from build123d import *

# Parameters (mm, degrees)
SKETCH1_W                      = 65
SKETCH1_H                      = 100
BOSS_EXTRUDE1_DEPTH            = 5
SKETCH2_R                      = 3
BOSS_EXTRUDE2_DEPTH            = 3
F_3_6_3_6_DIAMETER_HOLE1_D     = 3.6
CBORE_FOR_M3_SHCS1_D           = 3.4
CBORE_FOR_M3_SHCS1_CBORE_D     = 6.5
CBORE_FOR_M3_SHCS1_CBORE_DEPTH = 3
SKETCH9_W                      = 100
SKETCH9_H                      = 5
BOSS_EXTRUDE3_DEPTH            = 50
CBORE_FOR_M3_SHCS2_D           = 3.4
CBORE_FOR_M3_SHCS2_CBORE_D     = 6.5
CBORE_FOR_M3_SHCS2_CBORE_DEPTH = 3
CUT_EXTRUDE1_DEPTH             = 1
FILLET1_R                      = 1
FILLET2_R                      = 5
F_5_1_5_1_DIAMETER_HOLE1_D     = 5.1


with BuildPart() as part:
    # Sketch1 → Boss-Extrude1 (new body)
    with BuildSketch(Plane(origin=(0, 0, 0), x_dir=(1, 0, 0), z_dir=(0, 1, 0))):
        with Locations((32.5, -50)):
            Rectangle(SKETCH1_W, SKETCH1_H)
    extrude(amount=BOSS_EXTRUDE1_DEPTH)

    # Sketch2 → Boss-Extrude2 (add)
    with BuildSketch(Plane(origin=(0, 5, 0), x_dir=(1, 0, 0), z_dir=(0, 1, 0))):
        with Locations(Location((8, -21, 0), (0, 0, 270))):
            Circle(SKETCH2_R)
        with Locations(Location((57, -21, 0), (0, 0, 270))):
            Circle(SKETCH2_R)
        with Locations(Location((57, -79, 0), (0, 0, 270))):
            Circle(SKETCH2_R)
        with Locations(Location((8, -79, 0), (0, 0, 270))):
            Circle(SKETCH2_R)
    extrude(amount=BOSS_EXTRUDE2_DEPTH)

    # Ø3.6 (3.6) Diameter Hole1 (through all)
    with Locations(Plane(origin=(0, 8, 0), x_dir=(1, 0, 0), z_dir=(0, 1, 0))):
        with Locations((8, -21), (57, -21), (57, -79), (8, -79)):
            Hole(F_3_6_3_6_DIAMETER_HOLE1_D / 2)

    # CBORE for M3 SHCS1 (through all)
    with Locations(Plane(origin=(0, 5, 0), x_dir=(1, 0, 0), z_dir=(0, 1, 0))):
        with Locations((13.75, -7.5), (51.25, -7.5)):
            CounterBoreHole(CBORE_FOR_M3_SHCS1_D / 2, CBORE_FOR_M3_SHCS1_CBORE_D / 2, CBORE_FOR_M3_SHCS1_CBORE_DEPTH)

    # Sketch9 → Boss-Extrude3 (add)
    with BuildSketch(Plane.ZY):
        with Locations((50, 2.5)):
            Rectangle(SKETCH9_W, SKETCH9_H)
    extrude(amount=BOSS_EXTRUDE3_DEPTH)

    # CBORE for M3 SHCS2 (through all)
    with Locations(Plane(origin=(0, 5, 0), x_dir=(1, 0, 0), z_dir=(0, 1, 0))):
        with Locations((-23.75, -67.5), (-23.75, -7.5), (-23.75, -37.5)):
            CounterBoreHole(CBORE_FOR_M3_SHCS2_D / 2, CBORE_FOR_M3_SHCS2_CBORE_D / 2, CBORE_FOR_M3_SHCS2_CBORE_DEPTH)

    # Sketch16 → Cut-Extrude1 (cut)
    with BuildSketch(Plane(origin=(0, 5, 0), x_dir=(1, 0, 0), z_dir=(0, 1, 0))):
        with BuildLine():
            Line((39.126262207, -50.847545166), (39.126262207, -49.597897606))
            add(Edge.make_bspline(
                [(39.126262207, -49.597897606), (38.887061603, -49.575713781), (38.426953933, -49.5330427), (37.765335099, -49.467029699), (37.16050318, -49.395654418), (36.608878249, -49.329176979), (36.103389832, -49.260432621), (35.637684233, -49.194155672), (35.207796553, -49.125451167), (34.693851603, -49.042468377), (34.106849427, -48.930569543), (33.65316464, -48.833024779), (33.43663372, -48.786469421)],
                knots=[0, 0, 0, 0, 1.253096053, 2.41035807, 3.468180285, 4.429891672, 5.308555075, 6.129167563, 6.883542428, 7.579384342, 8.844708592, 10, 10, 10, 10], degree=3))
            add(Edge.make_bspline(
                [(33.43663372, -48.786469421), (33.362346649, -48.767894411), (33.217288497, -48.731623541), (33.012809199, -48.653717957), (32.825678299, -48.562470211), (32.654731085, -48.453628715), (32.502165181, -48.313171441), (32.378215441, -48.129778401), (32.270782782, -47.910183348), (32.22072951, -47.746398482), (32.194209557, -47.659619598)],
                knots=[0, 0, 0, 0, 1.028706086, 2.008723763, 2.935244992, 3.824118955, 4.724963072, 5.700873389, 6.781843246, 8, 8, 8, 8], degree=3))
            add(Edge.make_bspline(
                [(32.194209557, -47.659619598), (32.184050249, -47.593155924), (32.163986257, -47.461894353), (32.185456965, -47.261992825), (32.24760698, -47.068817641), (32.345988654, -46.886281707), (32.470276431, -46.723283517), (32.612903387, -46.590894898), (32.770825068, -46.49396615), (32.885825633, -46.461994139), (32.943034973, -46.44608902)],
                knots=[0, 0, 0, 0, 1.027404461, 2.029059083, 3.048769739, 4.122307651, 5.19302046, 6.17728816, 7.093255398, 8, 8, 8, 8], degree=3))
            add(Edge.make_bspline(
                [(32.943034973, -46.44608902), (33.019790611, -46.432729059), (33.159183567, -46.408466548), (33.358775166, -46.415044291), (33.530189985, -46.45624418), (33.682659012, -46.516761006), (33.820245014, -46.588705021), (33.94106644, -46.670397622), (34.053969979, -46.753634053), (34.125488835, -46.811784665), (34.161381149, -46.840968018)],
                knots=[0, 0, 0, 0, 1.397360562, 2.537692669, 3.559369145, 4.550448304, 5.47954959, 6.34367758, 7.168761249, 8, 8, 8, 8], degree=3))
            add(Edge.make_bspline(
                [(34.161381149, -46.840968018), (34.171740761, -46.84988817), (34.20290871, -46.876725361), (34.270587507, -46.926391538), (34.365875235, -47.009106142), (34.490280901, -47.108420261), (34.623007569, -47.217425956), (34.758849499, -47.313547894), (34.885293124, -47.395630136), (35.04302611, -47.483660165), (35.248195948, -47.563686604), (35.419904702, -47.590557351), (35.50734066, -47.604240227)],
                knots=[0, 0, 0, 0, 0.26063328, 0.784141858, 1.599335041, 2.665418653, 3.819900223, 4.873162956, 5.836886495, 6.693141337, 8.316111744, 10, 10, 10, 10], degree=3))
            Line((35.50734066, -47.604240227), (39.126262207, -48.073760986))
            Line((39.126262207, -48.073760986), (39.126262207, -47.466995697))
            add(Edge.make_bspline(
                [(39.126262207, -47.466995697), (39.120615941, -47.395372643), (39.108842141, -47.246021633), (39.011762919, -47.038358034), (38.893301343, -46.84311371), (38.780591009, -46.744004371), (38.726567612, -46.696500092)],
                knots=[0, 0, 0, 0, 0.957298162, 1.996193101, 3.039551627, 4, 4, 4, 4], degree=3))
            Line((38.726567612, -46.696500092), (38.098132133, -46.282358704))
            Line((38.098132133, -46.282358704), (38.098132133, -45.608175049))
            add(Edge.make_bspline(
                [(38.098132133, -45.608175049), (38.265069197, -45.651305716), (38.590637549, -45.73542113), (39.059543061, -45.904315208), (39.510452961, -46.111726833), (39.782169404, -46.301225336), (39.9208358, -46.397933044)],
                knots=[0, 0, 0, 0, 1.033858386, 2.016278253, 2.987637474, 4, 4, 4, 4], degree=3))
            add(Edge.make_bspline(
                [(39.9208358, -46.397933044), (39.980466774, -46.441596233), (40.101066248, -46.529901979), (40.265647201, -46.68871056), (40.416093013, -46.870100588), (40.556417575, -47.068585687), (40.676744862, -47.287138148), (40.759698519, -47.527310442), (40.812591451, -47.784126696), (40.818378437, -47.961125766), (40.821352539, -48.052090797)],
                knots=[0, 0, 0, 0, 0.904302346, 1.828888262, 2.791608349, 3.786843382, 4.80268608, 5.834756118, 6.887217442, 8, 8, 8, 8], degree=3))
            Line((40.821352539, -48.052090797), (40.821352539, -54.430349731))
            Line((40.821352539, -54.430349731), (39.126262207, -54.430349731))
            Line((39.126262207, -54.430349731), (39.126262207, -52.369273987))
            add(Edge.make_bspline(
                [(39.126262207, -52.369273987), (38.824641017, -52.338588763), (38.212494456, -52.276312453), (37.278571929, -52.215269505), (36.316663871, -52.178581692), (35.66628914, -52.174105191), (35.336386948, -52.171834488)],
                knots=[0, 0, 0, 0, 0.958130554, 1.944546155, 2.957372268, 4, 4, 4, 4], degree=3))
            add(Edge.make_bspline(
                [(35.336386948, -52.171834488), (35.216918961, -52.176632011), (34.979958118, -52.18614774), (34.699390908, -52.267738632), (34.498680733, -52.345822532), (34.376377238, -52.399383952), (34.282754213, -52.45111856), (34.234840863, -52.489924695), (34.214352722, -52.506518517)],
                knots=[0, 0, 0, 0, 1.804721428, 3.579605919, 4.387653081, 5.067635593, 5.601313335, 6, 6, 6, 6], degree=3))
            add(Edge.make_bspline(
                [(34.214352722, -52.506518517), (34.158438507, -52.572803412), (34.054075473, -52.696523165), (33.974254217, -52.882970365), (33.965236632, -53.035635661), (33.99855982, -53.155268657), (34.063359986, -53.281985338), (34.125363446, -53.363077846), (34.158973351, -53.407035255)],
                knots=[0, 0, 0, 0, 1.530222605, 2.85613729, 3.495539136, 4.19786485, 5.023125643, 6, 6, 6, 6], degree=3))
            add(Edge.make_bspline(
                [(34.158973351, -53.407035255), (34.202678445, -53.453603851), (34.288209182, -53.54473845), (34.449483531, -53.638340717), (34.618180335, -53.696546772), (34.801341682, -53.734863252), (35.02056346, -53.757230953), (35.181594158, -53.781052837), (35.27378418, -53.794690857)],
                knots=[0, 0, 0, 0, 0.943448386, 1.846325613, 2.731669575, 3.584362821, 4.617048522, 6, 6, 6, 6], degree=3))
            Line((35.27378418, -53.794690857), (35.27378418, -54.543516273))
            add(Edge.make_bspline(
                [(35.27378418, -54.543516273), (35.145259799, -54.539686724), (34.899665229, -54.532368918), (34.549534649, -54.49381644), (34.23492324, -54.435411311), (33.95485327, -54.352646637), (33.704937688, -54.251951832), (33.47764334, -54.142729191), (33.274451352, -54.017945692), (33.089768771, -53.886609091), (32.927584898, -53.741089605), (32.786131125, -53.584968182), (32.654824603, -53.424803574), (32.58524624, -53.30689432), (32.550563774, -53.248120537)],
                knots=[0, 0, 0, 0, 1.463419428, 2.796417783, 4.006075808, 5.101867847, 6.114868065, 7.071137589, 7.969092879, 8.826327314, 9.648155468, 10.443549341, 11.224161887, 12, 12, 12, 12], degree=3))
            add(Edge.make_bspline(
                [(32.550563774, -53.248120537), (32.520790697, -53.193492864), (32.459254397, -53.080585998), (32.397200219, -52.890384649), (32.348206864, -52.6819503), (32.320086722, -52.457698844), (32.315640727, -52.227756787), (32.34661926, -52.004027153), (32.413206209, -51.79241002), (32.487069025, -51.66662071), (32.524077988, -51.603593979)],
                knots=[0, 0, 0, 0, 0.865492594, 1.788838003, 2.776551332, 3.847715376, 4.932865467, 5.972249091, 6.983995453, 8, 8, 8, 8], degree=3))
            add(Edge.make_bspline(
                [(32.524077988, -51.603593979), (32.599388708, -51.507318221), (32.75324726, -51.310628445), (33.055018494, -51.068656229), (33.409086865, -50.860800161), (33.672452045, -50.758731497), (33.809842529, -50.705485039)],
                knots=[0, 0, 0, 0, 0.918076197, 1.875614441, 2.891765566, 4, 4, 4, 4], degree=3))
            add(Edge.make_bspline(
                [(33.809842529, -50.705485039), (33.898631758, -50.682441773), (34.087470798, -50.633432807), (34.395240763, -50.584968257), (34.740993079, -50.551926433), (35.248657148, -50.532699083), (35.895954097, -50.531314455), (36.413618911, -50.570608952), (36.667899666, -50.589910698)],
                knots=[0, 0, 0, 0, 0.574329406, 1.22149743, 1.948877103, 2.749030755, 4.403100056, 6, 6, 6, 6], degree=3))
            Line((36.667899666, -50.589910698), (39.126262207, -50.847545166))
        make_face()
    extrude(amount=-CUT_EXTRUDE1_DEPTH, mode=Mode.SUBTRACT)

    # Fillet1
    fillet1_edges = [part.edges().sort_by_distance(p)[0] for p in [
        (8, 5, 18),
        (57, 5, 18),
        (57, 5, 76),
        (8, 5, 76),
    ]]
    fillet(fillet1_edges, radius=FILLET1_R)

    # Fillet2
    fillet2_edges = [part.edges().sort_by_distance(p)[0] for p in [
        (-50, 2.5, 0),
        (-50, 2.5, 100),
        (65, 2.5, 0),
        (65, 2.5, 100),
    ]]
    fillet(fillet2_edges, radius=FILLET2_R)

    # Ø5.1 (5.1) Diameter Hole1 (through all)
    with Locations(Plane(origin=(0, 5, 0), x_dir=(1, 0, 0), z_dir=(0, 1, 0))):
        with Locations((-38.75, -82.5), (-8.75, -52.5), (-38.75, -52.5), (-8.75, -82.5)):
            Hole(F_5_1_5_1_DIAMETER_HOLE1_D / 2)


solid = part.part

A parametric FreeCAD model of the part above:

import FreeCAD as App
import Part
import Sketcher


def edges_at(feature, points):
    """Names of the edges that pass closest to the given points."""
    edges = feature.Shape.Edges
    near = lambda p: min(range(len(edges)), key=lambda i: edges[i].distToShape(Part.Vertex(*p))[0])
    return sorted({f"Edge{near(p) + 1}" for p in points})


def add_polygon(sketch, points):
    """Adds a closed chain of lines whose ends are joined by coincident constraints."""
    first, n = sketch.GeometryCount, len(points)
    for a, b in zip(points, points[1:] + points[:1]):
        sketch.addGeometry(Part.LineSegment(App.Vector(*a, 0), App.Vector(*b, 0)), False)
    for i in range(n):
        sketch.addConstraint(Sketcher.Constraint("Coincident", first + i, 2, first + (i + 1) % n, 1))

doc = App.newDocument("Part")
body = doc.addObject("PartDesign::Body", "Body")

# Sketch on XZ plane
sketch1 = body.newObject("Sketcher::SketchObject", "Sketch")
sketch1.AttachmentSupport = (doc.getObject("XZ_Plane"), [""])
sketch1.MapMode = "FlatFace"
add_polygon(sketch1, [(0, 0), (0, 100), (65, 100), (65, 0)])  # lines 0-3
sketch1.addConstraint([
    Sketcher.Constraint("Vertical", 0),
    Sketcher.Constraint("Horizontal", 1),
    Sketcher.Constraint("Vertical", 2),
    Sketcher.Constraint("Horizontal", 3),
    Sketcher.Constraint("Coincident", 3, 2, -1, 1),
    Sketcher.Constraint("DistanceX", 1, 1, 1, 2, 65.0),
    Sketcher.Constraint("DistanceY", 0, 1, 0, 2, 100.0),
])
pad1 = body.newObject("PartDesign::Pad", "Pad")
pad1.Profile = sketch1
pad1.Length = 5
pad1.Reversed = True

# Sketch on XZ plane
sketch2 = body.newObject("Sketcher::SketchObject", "Sketch001")
sketch2.AttachmentSupport = (doc.getObject("XZ_Plane"), [""])
sketch2.MapMode = "FlatFace"
sketch2.AttachmentOffset = App.Placement(App.Vector(0, 0, -5), App.Rotation())
sketch2.addGeometry([
    Part.Circle(App.Vector(8, 21, 0), App.Vector(0, 0, 1), 3),
    Part.Circle(App.Vector(57, 21, 0), App.Vector(0, 0, 1), 3),
    Part.Circle(App.Vector(57, 79, 0), App.Vector(0, 0, 1), 3),
    Part.Circle(App.Vector(8, 79, 0), App.Vector(0, 0, 1), 3),
], False)
sketch2.addConstraint([
    Sketcher.Constraint("Equal", 0, 1),
    Sketcher.Constraint("Equal", 1, 2),
    Sketcher.Constraint("Equal", 2, 3),
    Sketcher.Constraint("Horizontal", 0, 3, 1, 3),
    Sketcher.Constraint("Horizontal", 2, 3, 3, 3),
    Sketcher.Constraint("Vertical", 1, 3, 2, 3),
    Sketcher.Constraint("Vertical", 0, 3, 3, 3),
    Sketcher.Constraint("Diameter", 0, 6.0),
    Sketcher.Constraint("DistanceX", -1, 1, 0, 3, 8.0),
    Sketcher.Constraint("DistanceY", -1, 1, 0, 3, 21.0),
    Sketcher.Constraint("DistanceX", -1, 1, 1, 3, 57.0),
    Sketcher.Constraint("DistanceY", -1, 1, 2, 3, 79.0),
])
pad2 = body.newObject("PartDesign::Pad", "Pad001")
pad2.Profile = sketch2
pad2.Length = 3
pad2.Reversed = True

# Sketch on XZ plane
sketch3 = body.newObject("Sketcher::SketchObject", "Sketch002")
sketch3.AttachmentSupport = (doc.getObject("XZ_Plane"), [""])
sketch3.MapMode = "FlatFace"
sketch3.AttachmentOffset = App.Placement(App.Vector(0, 0, -8), App.Rotation())
sketch3.addGeometry([
    Part.Circle(App.Vector(8, 21, 0), App.Vector(0, 0, 1), 1.8),
    Part.Circle(App.Vector(57, 21, 0), App.Vector(0, 0, 1), 1.8),
    Part.Circle(App.Vector(57, 79, 0), App.Vector(0, 0, 1), 1.8),
    Part.Circle(App.Vector(8, 79, 0), App.Vector(0, 0, 1), 1.8),
], False)
sketch3.addConstraint([
    Sketcher.Constraint("Equal", 0, 1),
    Sketcher.Constraint("Equal", 1, 2),
    Sketcher.Constraint("Equal", 2, 3),
    Sketcher.Constraint("Horizontal", 0, 3, 1, 3),
    Sketcher.Constraint("Horizontal", 2, 3, 3, 3),
    Sketcher.Constraint("Vertical", 1, 3, 2, 3),
    Sketcher.Constraint("Vertical", 0, 3, 3, 3),
    Sketcher.Constraint("Diameter", 0, 3.6),
    Sketcher.Constraint("DistanceX", -1, 1, 0, 3, 8.0),
    Sketcher.Constraint("DistanceY", -1, 1, 0, 3, 21.0),
    Sketcher.Constraint("DistanceX", -1, 1, 1, 3, 57.0),
    Sketcher.Constraint("DistanceY", -1, 1, 2, 3, 79.0),
])
doc.recompute()
hole = body.newObject("PartDesign::Hole", "Hole")
hole.Profile = sketch3
hole.ThreadType = "None"
hole.Diameter = 3.6
hole.DepthType = "ThroughAll"
hole.Reversed = True

# Sketch on XZ plane
sketch4 = body.newObject("Sketcher::SketchObject", "Sketch003")
sketch4.AttachmentSupport = (doc.getObject("XZ_Plane"), [""])
sketch4.MapMode = "FlatFace"
sketch4.AttachmentOffset = App.Placement(App.Vector(0, 0, -5), App.Rotation())
sketch4.addGeometry([
    Part.Circle(App.Vector(13.75, 7.5, 0), App.Vector(0, 0, 1), 1.7),
    Part.Circle(App.Vector(51.25, 7.5, 0), App.Vector(0, 0, 1), 1.7),
], False)
sketch4.addConstraint([
    Sketcher.Constraint("Equal", 0, 1),
    Sketcher.Constraint("Horizontal", 0, 3, 1, 3),
    Sketcher.Constraint("Diameter", 0, 3.4),
    Sketcher.Constraint("DistanceY", -1, 1, 0, 3, 7.5),
    Sketcher.Constraint("DistanceX", 0, 3, 1, 3, 37.5),
    Sketcher.Constraint("DistanceX", -1, 1, 0, 3, 13.75),
])
doc.recompute()
hole2 = body.newObject("PartDesign::Hole", "Hole001")
hole2.Profile = sketch4
hole2.ThreadType = "None"
hole2.Diameter = 3.4
hole2.DepthType = "ThroughAll"
hole2.HoleCutType = "Counterbore"
hole2.HoleCutDiameter = 6.5
hole2.HoleCutDepth = 3
hole2.Reversed = True

# Sketch on YZ plane
sketch5 = body.newObject("Sketcher::SketchObject", "Sketch004")
sketch5.AttachmentSupport = (doc.getObject("YZ_Plane"), [""])
sketch5.MapMode = "FlatFace"
add_polygon(sketch5, [(5, 0), (0, 0), (0, 100), (5, 100)])  # lines 0-3
sketch5.addConstraint([
    Sketcher.Constraint("Horizontal", 0),
    Sketcher.Constraint("Vertical", 1),
    Sketcher.Constraint("Horizontal", 2),
    Sketcher.Constraint("Vertical", 3),
    Sketcher.Constraint("Coincident", 0, 2, -1, 1),
    Sketcher.Constraint("DistanceX", 0, 2, 0, 1, 5.0),
    Sketcher.Constraint("DistanceY", 1, 1, 1, 2, 100.0),
])
pad3 = body.newObject("PartDesign::Pad", "Pad002")
pad3.Profile = sketch5
pad3.Length = 50
pad3.Reversed = True

# Sketch on XZ plane
sketch6 = body.newObject("Sketcher::SketchObject", "Sketch005")
sketch6.AttachmentSupport = (doc.getObject("XZ_Plane"), [""])
sketch6.MapMode = "FlatFace"
sketch6.AttachmentOffset = App.Placement(App.Vector(0, 0, -5), App.Rotation())
sketch6.addGeometry([
    Part.Circle(App.Vector(-23.75, 67.5, 0), App.Vector(0, 0, 1), 1.7),
    Part.Circle(App.Vector(-23.75, 7.5, 0), App.Vector(0, 0, 1), 1.7),
    Part.Circle(App.Vector(-23.75, 37.5, 0), App.Vector(0, 0, 1), 1.7),
], False)
sketch6.addConstraint([
    Sketcher.Constraint("Equal", 0, 1),
    Sketcher.Constraint("Equal", 1, 2),
    Sketcher.Constraint("Vertical", 0, 3, 1, 3),
    Sketcher.Constraint("Vertical", 1, 3, 2, 3),
    Sketcher.Constraint("Diameter", 0, 3.4),
    Sketcher.Constraint("DistanceY", 1, 3, 0, 3, 60.0),
    Sketcher.Constraint("DistanceY", 2, 3, 0, 3, 30.0),
    Sketcher.Constraint("DistanceY", -1, 1, 0, 3, 67.5),
    Sketcher.Constraint("DistanceX", 0, 3, -1, 1, 23.75),
])
doc.recompute()
hole3 = body.newObject("PartDesign::Hole", "Hole002")
hole3.Profile = sketch6
hole3.ThreadType = "None"
hole3.Diameter = 3.4
hole3.DepthType = "ThroughAll"
hole3.HoleCutType = "Counterbore"
hole3.HoleCutDiameter = 6.5
hole3.HoleCutDepth = 3
hole3.Reversed = True

# Sketch on XZ plane
sketch7 = body.newObject("Sketcher::SketchObject", "Sketch006")
sketch7.AttachmentSupport = (doc.getObject("XZ_Plane"), [""])
sketch7.MapMode = "FlatFace"
sketch7.AttachmentOffset = App.Placement(App.Vector(0, 0, -5), App.Rotation())
sketch7.addGeometry([
    Part.LineSegment(App.Vector(39.126262, 49.597898, 0), App.Vector(39.126262, 50.847545, 0)),  # 0
    Part.LineSegment(App.Vector(39.126262, 50.847545, 0), App.Vector(36.6679, 50.589911, 0)),  # 1
    Part.BSplineCurve([App.Vector(33.809843, 50.705485, 0), App.Vector(33.898632, 50.682442, 0), App.Vector(34.087471, 50.633433, 0), App.Vector(34.395241, 50.584968, 0), App.Vector(34.740993, 50.551926, 0), App.Vector(35.248657, 50.532699, 0), App.Vector(35.895954, 50.531314, 0), App.Vector(36.413619, 50.570609, 0), App.Vector(36.6679, 50.589911, 0)], [4, 1, 1, 1, 1, 1, 4], [0, 0.574329406, 1.22149743, 1.948877103, 2.749030755, 4.403100056, 6], False, 3, [1, 1, 1, 1, 1, 1, 1, 1, 1], False),  # 2
    Part.BSplineCurve([App.Vector(32.524078, 51.603594, 0), App.Vector(32.599389, 51.507318, 0), App.Vector(32.753247, 51.310628, 0), App.Vector(33.055018, 51.068656, 0), App.Vector(33.409087, 50.8608, 0), App.Vector(33.672452, 50.758731, 0), App.Vector(33.809843, 50.705485, 0)], [4, 1, 1, 1, 4], [0, 0.918076197, 1.875614441, 2.891765566, 4], False, 3, [1, 1, 1, 1, 1, 1, 1], False),  # 3
    Part.BSplineCurve([App.Vector(32.550564, 53.248121, 0), App.Vector(32.520791, 53.193493, 0), App.Vector(32.459254, 53.080586, 0), App.Vector(32.3972, 52.890385, 0), App.Vector(32.348207, 52.68195, 0), App.Vector(32.320087, 52.457699, 0), App.Vector(32.315641, 52.227757, 0), App.Vector(32.346619, 52.004027, 0), App.Vector(32.413206, 51.79241, 0), App.Vector(32.487069, 51.666621, 0), App.Vector(32.524078, 51.603594, 0)], [4, 1, 1, 1, 1, 1, 1, 1, 4], [0, 0.865492594, 1.788838003, 2.776551332, 3.847715376, 4.932865467, 5.972249091, 6.983995453, 8], False, 3, [1, 1, 1, 1, 1, 1, 1, 1, 1, 1, 1], False),  # 4
    Part.BSplineCurve([App.Vector(35.273784, 54.543516, 0), App.Vector(35.14526, 54.539687, 0), App.Vector(34.899665, 54.532369, 0), App.Vector(34.549535, 54.493816, 0), App.Vector(34.234923, 54.435411, 0), App.Vector(33.954853, 54.352647, 0), App.Vector(33.704938, 54.251952, 0), App.Vector(33.477643, 54.142729, 0), App.Vector(33.274451, 54.017946, 0), App.Vector(33.089769, 53.886609, 0), App.Vector(32.927585, 53.74109, 0), App.Vector(32.786131, 53.584968, 0), App.Vector(32.654825, 53.424804, 0), App.Vector(32.585246, 53.306894, 0), App.Vector(32.550564, 53.248121, 0)], [4, 1, 1, 1, 1, 1, 1, 1, 1, 1, 1, 1, 4], [0, 1.463419428, 2.796417783, 4.006075808, 5.101867847, 6.114868065, 7.071137589, 7.969092879, 8.826327314, 9.648155468, 10.443549341, 11.224161887, 12], False, 3, [1, 1, 1, 1, 1, 1, 1, 1, 1, 1, 1, 1, 1, 1, 1], False),  # 5
    Part.LineSegment(App.Vector(35.273784, 54.543516, 0), App.Vector(35.273784, 53.794691, 0)),  # 6
    Part.BSplineCurve([App.Vector(34.158973, 53.407035, 0), App.Vector(34.202678, 53.453604, 0), App.Vector(34.288209, 53.544738, 0), App.Vector(34.449484, 53.638341, 0), App.Vector(34.61818, 53.696547, 0), App.Vector(34.801342, 53.734863, 0), App.Vector(35.020563, 53.757231, 0), App.Vector(35.181594, 53.781053, 0), App.Vector(35.273784, 53.794691, 0)], [4, 1, 1, 1, 1, 1, 4], [0, 0.943448386, 1.846325613, 2.731669575, 3.584362821, 4.617048522, 6], False, 3, [1, 1, 1, 1, 1, 1, 1, 1, 1], False),  # 7
    Part.BSplineCurve([App.Vector(34.214353, 52.506519, 0), App.Vector(34.158439, 52.572803, 0), App.Vector(34.054075, 52.696523, 0), App.Vector(33.974254, 52.88297, 0), App.Vector(33.965237, 53.035636, 0), App.Vector(33.99856, 53.155269, 0), App.Vector(34.06336, 53.281985, 0), App.Vector(34.125363, 53.363078, 0), App.Vector(34.158973, 53.407035, 0)], [4, 1, 1, 1, 1, 1, 4], [0, 1.530222605, 2.85613729, 3.495539136, 4.19786485, 5.023125643, 6], False, 3, [1, 1, 1, 1, 1, 1, 1, 1, 1], False),  # 8
    Part.BSplineCurve([App.Vector(35.336387, 52.171834, 0), App.Vector(35.216919, 52.176632, 0), App.Vector(34.979958, 52.186148, 0), App.Vector(34.699391, 52.267739, 0), App.Vector(34.498681, 52.345823, 0), App.Vector(34.376377, 52.399384, 0), App.Vector(34.282754, 52.451119, 0), App.Vector(34.234841, 52.489925, 0), App.Vector(34.214353, 52.506519, 0)], [4, 1, 1, 1, 1, 1, 4], [0, 1.804721428, 3.579605919, 4.387653081, 5.067635593, 5.601313335, 6], False, 3, [1, 1, 1, 1, 1, 1, 1, 1, 1], False),  # 9
    Part.BSplineCurve([App.Vector(39.126262, 52.369274, 0), App.Vector(38.824641, 52.338589, 0), App.Vector(38.212494, 52.276312, 0), App.Vector(37.278572, 52.21527, 0), App.Vector(36.316664, 52.178582, 0), App.Vector(35.666289, 52.174105, 0), App.Vector(35.336387, 52.171834, 0)], [4, 1, 1, 1, 4], [0, 0.958130554, 1.944546155, 2.957372268, 4], False, 3, [1, 1, 1, 1, 1, 1, 1], False),  # 10
    Part.LineSegment(App.Vector(39.126262, 52.369274, 0), App.Vector(39.126262, 54.43035, 0)),  # 11
    Part.LineSegment(App.Vector(39.126262, 54.43035, 0), App.Vector(40.821353, 54.43035, 0)),  # 12
    Part.LineSegment(App.Vector(40.821353, 54.43035, 0), App.Vector(40.821353, 48.052091, 0)),  # 13
    Part.BSplineCurve([App.Vector(39.920836, 46.397933, 0), App.Vector(39.980467, 46.441596, 0), App.Vector(40.101066, 46.529902, 0), App.Vector(40.265647, 46.688711, 0), App.Vector(40.416093, 46.870101, 0), App.Vector(40.556418, 47.068586, 0), App.Vector(40.676745, 47.287138, 0), App.Vector(40.759699, 47.52731, 0), App.Vector(40.812591, 47.784127, 0), App.Vector(40.818378, 47.961126, 0), App.Vector(40.821353, 48.052091, 0)], [4, 1, 1, 1, 1, 1, 1, 1, 4], [0, 0.904302346, 1.828888262, 2.791608349, 3.786843382, 4.80268608, 5.834756118, 6.887217442, 8], False, 3, [1, 1, 1, 1, 1, 1, 1, 1, 1, 1, 1], False),  # 14
    Part.BSplineCurve([App.Vector(38.098132, 45.608175, 0), App.Vector(38.265069, 45.651306, 0), App.Vector(38.590638, 45.735421, 0), App.Vector(39.059543, 45.904315, 0), App.Vector(39.510453, 46.111727, 0), App.Vector(39.782169, 46.301225, 0), App.Vector(39.920836, 46.397933, 0)], [4, 1, 1, 1, 4], [0, 1.033858386, 2.016278253, 2.987637474, 4], False, 3, [1, 1, 1, 1, 1, 1, 1], False),  # 15
    Part.LineSegment(App.Vector(38.098132, 45.608175, 0), App.Vector(38.098132, 46.282359, 0)),  # 16
    Part.LineSegment(App.Vector(38.098132, 46.282359, 0), App.Vector(38.726568, 46.6965, 0)),  # 17
    Part.BSplineCurve([App.Vector(39.126262, 47.466996, 0), App.Vector(39.120616, 47.395373, 0), App.Vector(39.108842, 47.246022, 0), App.Vector(39.011763, 47.038358, 0), App.Vector(38.893301, 46.843114, 0), App.Vector(38.780591, 46.744004, 0), App.Vector(38.726568, 46.6965, 0)], [4, 1, 1, 1, 4], [0, 0.957298162, 1.996193101, 3.039551627, 4], False, 3, [1, 1, 1, 1, 1, 1, 1], False),  # 18
    Part.LineSegment(App.Vector(39.126262, 47.466996, 0), App.Vector(39.126262, 48.073761, 0)),  # 19
    Part.LineSegment(App.Vector(39.126262, 48.073761, 0), App.Vector(35.507341, 47.60424, 0)),  # 20
    Part.BSplineCurve([App.Vector(34.161381, 46.840968, 0), App.Vector(34.171741, 46.849888, 0), App.Vector(34.202909, 46.876725, 0), App.Vector(34.270588, 46.926392, 0), App.Vector(34.365875, 47.009106, 0), App.Vector(34.490281, 47.10842, 0), App.Vector(34.623008, 47.217426, 0), App.Vector(34.758849, 47.313548, 0), App.Vector(34.885293, 47.39563, 0), App.Vector(35.043026, 47.48366, 0), App.Vector(35.248196, 47.563687, 0), App.Vector(35.419905, 47.590557, 0), App.Vector(35.507341, 47.60424, 0)], [4, 1, 1, 1, 1, 1, 1, 1, 1, 1, 4], [0, 0.26063328, 0.784141858, 1.599335041, 2.665418653, 3.819900223, 4.873162956, 5.836886495, 6.693141337, 8.316111744, 10], False, 3, [1, 1, 1, 1, 1, 1, 1, 1, 1, 1, 1, 1, 1], False),  # 21
    Part.BSplineCurve([App.Vector(32.943035, 46.446089, 0), App.Vector(33.019791, 46.432729, 0), App.Vector(33.159184, 46.408467, 0), App.Vector(33.358775, 46.415044, 0), App.Vector(33.53019, 46.456244, 0), App.Vector(33.682659, 46.516761, 0), App.Vector(33.820245, 46.588705, 0), App.Vector(33.941066, 46.670398, 0), App.Vector(34.05397, 46.753634, 0), App.Vector(34.125489, 46.811785, 0), App.Vector(34.161381, 46.840968, 0)], [4, 1, 1, 1, 1, 1, 1, 1, 4], [0, 1.397360562, 2.537692669, 3.559369145, 4.550448304, 5.47954959, 6.34367758, 7.168761249, 8], False, 3, [1, 1, 1, 1, 1, 1, 1, 1, 1, 1, 1], False),  # 22
    Part.BSplineCurve([App.Vector(32.19421, 47.65962, 0), App.Vector(32.18405, 47.593156, 0), App.Vector(32.163986, 47.461894, 0), App.Vector(32.185457, 47.261993, 0), App.Vector(32.247607, 47.068818, 0), App.Vector(32.345989, 46.886282, 0), App.Vector(32.470276, 46.723284, 0), App.Vector(32.612903, 46.590895, 0), App.Vector(32.770825, 46.493966, 0), App.Vector(32.885826, 46.461994, 0), App.Vector(32.943035, 46.446089, 0)], [4, 1, 1, 1, 1, 1, 1, 1, 4], [0, 1.027404461, 2.029059083, 3.048769739, 4.122307651, 5.19302046, 6.17728816, 7.093255398, 8], False, 3, [1, 1, 1, 1, 1, 1, 1, 1, 1, 1, 1], False),  # 23
    Part.BSplineCurve([App.Vector(33.436634, 48.786469, 0), App.Vector(33.362347, 48.767894, 0), App.Vector(33.217288, 48.731624, 0), App.Vector(33.012809, 48.653718, 0), App.Vector(32.825678, 48.56247, 0), App.Vector(32.654731, 48.453629, 0), App.Vector(32.502165, 48.313171, 0), App.Vector(32.378215, 48.129778, 0), App.Vector(32.270783, 47.910183, 0), App.Vector(32.22073, 47.746398, 0), App.Vector(32.19421, 47.65962, 0)], [4, 1, 1, 1, 1, 1, 1, 1, 4], [0, 1.028706086, 2.008723763, 2.935244992, 3.824118955, 4.724963072, 5.700873389, 6.781843246, 8], False, 3, [1, 1, 1, 1, 1, 1, 1, 1, 1, 1, 1], False),  # 24
    Part.BSplineCurve([App.Vector(39.126262, 49.597898, 0), App.Vector(38.887062, 49.575714, 0), App.Vector(38.426954, 49.533043, 0), App.Vector(37.765335, 49.46703, 0), App.Vector(37.160503, 49.395654, 0), App.Vector(36.608878, 49.329177, 0), App.Vector(36.10339, 49.260433, 0), App.Vector(35.637684, 49.194156, 0), App.Vector(35.207797, 49.125451, 0), App.Vector(34.693852, 49.042468, 0), App.Vector(34.106849, 48.93057, 0), App.Vector(33.653165, 48.833025, 0), App.Vector(33.436634, 48.786469, 0)], [4, 1, 1, 1, 1, 1, 1, 1, 1, 1, 4], [0, 1.253096053, 2.41035807, 3.468180285, 4.429891672, 5.308555075, 6.129167563, 6.883542428, 7.579384342, 8.844708592, 10], False, 3, [1, 1, 1, 1, 1, 1, 1, 1, 1, 1, 1, 1, 1], False),  # 25
], False)
sketch7.addConstraint([
    Sketcher.Constraint("Block", 2),
    Sketcher.Constraint("Block", 3),
    Sketcher.Constraint("Block", 4),
    Sketcher.Constraint("Block", 5),
    Sketcher.Constraint("Block", 7),
    Sketcher.Constraint("Block", 8),
    Sketcher.Constraint("Block", 9),
    Sketcher.Constraint("Block", 10),
    Sketcher.Constraint("Block", 14),
    Sketcher.Constraint("Block", 15),
    Sketcher.Constraint("Block", 18),
    Sketcher.Constraint("Block", 21),
    Sketcher.Constraint("Block", 22),
    Sketcher.Constraint("Block", 23),
    Sketcher.Constraint("Block", 24),
    Sketcher.Constraint("Block", 25),
    Sketcher.Constraint("Coincident", 0, 2, 1, 1),
    Sketcher.Constraint("Coincident", 1, 2, 2, 2),
    Sketcher.Constraint("Coincident", 5, 1, 6, 1),
    Sketcher.Constraint("Coincident", 6, 2, 7, 2),
    Sketcher.Constraint("Coincident", 10, 1, 11, 1),
    Sketcher.Constraint("Coincident", 11, 2, 12, 1),
    Sketcher.Constraint("Coincident", 12, 2, 13, 1),
    Sketcher.Constraint("Coincident", 13, 2, 14, 2),
    Sketcher.Constraint("Coincident", 15, 1, 16, 1),
    Sketcher.Constraint("Coincident", 16, 2, 17, 1),
    Sketcher.Constraint("Coincident", 17, 2, 18, 2),
    Sketcher.Constraint("Coincident", 18, 1, 19, 1),
    Sketcher.Constraint("Coincident", 19, 2, 20, 1),
    Sketcher.Constraint("Coincident", 20, 2, 21, 2),
    Sketcher.Constraint("Coincident", 25, 1, 0, 1),
    Sketcher.Constraint("Vertical", 0),
    Sketcher.Constraint("Vertical", 11),
    Sketcher.Constraint("Horizontal", 12),
    Sketcher.Constraint("Vertical", 13),
    Sketcher.Constraint("Vertical", 16),
    Sketcher.Constraint("Vertical", 19),
    Sketcher.Constraint("DistanceY", 13, 2, 13, 1, 6.378259),
    Sketcher.Constraint("DistanceY", 0, 1, 0, 2, 1.249648),
    Sketcher.Constraint("DistanceY", 16, 1, 16, 2, 0.674184),
    Sketcher.Constraint("DistanceY", 19, 1, 19, 2, 0.606765),
])
pocket1 = body.newObject("PartDesign::Pocket", "Pocket")
pocket1.Profile = sketch7
pocket1.Length = 1
pocket1.Reversed = True
doc.recompute()

fillet = body.newObject("PartDesign::Fillet", "Fillet")
fillet.Base = (pocket1, edges_at(pocket1, [
    (8, 5, 18),
    (57, 5, 18),
    (57, 5, 76),
    (8, 5, 76),
]))
fillet.Radius = 1
doc.recompute()

fillet2 = body.newObject("PartDesign::Fillet", "Fillet001")
fillet2.Base = (fillet, edges_at(fillet, [
    (-50, 2.5, 0),
    (-50, 2.5, 100),
    (65, 2.5, 0),
    (65, 2.5, 100),
]))
fillet2.Radius = 5

# Sketch on XZ plane
sketch8 = body.newObject("Sketcher::SketchObject", "Sketch007")
sketch8.AttachmentSupport = (doc.getObject("XZ_Plane"), [""])
sketch8.MapMode = "FlatFace"
sketch8.AttachmentOffset = App.Placement(App.Vector(0, 0, -5), App.Rotation())
sketch8.addGeometry([
    Part.Circle(App.Vector(-38.75, 82.5, 0), App.Vector(0, 0, 1), 2.55),
    Part.Circle(App.Vector(-8.75, 52.5, 0), App.Vector(0, 0, 1), 2.55),
    Part.Circle(App.Vector(-38.75, 52.5, 0), App.Vector(0, 0, 1), 2.55),
    Part.Circle(App.Vector(-8.75, 82.5, 0), App.Vector(0, 0, 1), 2.55),
], False)
sketch8.addConstraint([
    Sketcher.Constraint("Equal", 0, 1),
    Sketcher.Constraint("Equal", 1, 2),
    Sketcher.Constraint("Equal", 2, 3),
    Sketcher.Constraint("Horizontal", 1, 3, 2, 3),
    Sketcher.Constraint("Horizontal", 0, 3, 3, 3),
    Sketcher.Constraint("Vertical", 0, 3, 2, 3),
    Sketcher.Constraint("Vertical", 1, 3, 3, 3),
    Sketcher.Constraint("Diameter", 0, 5.1),
    Sketcher.Constraint("DistanceX", 0, 3, 1, 3, 30.0),
    Sketcher.Constraint("DistanceY", 1, 3, 0, 3, 30.0),
    Sketcher.Constraint("DistanceY", -1, 1, 0, 3, 82.5),
    Sketcher.Constraint("DistanceX", 0, 3, -1, 1, 38.75),
])
doc.recompute()
hole4 = body.newObject("PartDesign::Hole", "Hole003")
hole4.Profile = sketch8
hole4.ThreadType = "None"
hole4.Diameter = 5.1
hole4.DepthType = "ThroughAll"
hole4.Reversed = True

doc.recompute()
